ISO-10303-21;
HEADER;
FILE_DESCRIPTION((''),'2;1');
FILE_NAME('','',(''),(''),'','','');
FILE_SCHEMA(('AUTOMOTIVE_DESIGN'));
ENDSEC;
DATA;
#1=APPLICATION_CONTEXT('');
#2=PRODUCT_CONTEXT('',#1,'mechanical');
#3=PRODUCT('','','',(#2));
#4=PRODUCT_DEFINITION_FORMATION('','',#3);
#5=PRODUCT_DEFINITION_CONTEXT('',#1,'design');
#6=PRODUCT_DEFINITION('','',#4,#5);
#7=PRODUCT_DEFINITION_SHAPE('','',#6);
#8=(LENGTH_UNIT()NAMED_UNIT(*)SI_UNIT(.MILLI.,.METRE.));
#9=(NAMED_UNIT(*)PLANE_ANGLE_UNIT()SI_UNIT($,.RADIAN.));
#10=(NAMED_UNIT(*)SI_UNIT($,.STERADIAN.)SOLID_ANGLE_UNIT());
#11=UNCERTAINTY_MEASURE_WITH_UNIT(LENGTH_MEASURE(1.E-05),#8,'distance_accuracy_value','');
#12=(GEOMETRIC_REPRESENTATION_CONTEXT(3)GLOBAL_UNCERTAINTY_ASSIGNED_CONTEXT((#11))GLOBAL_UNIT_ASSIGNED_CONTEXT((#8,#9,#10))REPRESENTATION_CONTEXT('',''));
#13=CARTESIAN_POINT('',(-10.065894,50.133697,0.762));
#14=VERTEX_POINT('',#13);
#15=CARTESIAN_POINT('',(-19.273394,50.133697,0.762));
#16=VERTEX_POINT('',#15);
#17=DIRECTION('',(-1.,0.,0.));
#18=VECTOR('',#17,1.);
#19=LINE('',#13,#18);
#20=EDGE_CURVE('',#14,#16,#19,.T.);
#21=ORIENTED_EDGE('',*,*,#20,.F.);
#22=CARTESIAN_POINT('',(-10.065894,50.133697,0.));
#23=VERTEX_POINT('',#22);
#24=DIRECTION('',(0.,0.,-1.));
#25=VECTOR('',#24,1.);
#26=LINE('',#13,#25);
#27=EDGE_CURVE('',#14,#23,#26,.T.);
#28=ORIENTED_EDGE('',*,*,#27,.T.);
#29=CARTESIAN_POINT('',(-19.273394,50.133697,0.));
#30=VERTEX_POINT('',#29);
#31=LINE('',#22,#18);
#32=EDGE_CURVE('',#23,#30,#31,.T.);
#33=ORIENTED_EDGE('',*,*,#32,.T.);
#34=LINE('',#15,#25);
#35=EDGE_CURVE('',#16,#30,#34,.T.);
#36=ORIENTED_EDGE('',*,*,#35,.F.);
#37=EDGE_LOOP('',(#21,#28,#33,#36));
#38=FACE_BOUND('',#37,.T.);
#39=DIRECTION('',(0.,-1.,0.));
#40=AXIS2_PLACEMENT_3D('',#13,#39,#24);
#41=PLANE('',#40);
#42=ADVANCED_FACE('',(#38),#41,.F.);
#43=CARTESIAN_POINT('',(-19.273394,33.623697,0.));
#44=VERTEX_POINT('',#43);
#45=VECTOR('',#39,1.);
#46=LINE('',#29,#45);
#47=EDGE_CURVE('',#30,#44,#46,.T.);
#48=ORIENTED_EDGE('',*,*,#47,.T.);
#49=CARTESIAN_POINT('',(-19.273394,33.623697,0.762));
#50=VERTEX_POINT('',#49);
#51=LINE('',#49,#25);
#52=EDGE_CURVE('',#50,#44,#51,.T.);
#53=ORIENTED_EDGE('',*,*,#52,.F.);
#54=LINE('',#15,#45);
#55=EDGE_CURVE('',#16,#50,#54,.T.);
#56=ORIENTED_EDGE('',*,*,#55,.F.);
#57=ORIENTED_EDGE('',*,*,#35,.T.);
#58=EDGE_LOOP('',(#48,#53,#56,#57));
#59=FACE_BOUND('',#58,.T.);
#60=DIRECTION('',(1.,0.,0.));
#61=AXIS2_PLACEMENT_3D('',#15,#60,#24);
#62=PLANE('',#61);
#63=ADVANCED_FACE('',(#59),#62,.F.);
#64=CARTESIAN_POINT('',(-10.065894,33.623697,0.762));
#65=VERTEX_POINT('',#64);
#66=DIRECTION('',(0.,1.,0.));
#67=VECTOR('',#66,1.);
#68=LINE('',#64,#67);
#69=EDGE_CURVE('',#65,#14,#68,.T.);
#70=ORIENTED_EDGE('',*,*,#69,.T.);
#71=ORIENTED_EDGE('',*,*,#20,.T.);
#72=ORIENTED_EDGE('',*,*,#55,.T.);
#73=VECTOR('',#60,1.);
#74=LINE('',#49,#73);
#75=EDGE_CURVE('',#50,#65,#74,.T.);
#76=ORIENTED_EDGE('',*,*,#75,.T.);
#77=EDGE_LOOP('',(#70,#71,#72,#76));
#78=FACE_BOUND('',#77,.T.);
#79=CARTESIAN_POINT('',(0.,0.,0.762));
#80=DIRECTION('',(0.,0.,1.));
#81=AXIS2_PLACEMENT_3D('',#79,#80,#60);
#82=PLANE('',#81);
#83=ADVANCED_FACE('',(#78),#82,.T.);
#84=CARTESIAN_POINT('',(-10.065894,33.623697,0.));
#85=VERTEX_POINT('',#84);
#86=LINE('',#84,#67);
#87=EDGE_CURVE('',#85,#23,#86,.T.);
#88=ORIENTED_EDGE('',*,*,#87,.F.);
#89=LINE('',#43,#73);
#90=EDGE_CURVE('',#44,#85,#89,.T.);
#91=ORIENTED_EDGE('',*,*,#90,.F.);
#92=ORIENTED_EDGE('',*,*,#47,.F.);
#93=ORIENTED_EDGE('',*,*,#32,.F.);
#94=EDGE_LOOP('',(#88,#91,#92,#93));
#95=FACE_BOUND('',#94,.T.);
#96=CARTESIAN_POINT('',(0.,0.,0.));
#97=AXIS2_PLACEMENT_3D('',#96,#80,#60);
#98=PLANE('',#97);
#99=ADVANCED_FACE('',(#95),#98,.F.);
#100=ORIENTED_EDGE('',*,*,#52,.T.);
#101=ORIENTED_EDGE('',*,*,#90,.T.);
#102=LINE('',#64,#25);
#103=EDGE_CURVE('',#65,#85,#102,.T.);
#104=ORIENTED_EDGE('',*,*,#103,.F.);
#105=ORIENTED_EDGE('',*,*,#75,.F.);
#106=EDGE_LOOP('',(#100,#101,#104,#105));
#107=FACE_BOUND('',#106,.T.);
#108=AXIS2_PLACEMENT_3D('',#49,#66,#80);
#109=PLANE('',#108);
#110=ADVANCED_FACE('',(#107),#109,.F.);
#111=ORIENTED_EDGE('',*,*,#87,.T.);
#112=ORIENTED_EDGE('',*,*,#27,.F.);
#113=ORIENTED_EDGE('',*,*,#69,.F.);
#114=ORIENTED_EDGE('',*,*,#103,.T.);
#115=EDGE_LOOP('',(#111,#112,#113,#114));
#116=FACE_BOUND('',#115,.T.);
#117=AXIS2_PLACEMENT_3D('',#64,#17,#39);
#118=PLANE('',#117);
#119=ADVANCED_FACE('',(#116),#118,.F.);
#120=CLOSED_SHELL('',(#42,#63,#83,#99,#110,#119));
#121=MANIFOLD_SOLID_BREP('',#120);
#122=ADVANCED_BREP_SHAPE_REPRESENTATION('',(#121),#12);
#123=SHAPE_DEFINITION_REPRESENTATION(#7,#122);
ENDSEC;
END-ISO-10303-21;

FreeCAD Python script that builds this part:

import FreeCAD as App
import Part
import Sketcher
from FreeCAD import Vector
Q = App.Units.Quantity


def add_polygon(sketch, points):
    """Adds a closed chain of lines whose ends are joined by coincident constraints."""
    first, n = sketch.GeometryCount, len(points)
    for a, b in zip(points, points[1:] + points[:1]):
        sketch.addGeometry(Part.LineSegment(App.Vector(*a, 0), App.Vector(*b, 0)), False)
    for i in range(n):
        sketch.addConstraint(Sketcher.Constraint("Coincident", first + i, 2, first + (i + 1) % n, 1))

doc = App.newDocument("Part")
params = doc.addObject("Spreadsheet::Sheet", "Params")
for row, (alias, value) in enumerate([
    ("sketch1_height", "0.65 in"),
    ("pad1_length", "0.03 in"),
], start=1):
    params.set(f"A{row}", alias)
    params.set(f"B{row}", "=" + value)
    params.setAlias(f"B{row}", alias)

body = doc.addObject("PartDesign::Body", "Body")

# Sketch on XY plane
sketch1 = body.newObject("Sketcher::SketchObject", "Sketch")
sketch1.AttachmentSupport = (doc.getObject("XY_Plane"), [""])
sketch1.MapMode = "FlatFace"
add_polygon(sketch1, [(-19, 50), (-19, 34), (-10, 34), (-10, 50)])  # lines 0-3
sketch1.addConstraint(Sketcher.Constraint("Vertical", 0))
sketch1.addConstraint(Sketcher.Constraint("Horizontal", 1))
sketch1.addConstraint(Sketcher.Constraint("Vertical", 2))
sketch1.addConstraint(Sketcher.Constraint("Horizontal", 3))
sketch1.addConstraint(Sketcher.Constraint("DistanceY", 0, 2, 0, 1, Q("0.65 in")))
sketch1.addConstraint(Sketcher.Constraint("DistanceX", 1, 1, 1, 2, Q("0.3625 in")))
sketch1.addConstraint(Sketcher.Constraint("DistanceX", 0, 2, -1, 1, Q("19.273394 mm")))
sketch1.addConstraint(Sketcher.Constraint("DistanceY", -1, 1, 0, 2, Q("33.623697 mm")))
sketch1.setExpression("Constraints[8]", "Params.sketch1_height")
pad1 = body.newObject("PartDesign::Pad", "Pad")
pad1.Profile = sketch1
pad1.setExpression("Length", "Params.pad1_length")

doc.recompute()
